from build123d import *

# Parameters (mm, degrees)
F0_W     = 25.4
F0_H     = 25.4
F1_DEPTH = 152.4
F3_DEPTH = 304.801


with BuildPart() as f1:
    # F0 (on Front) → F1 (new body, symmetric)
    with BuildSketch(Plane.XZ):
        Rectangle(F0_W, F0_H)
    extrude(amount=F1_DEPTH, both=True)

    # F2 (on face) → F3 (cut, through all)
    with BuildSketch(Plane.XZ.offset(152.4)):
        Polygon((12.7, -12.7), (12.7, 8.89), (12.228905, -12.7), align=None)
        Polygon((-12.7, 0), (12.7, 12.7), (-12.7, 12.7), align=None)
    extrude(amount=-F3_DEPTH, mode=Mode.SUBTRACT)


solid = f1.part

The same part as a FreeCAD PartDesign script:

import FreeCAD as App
import Part
import Sketcher
Q = App.Units.Quantity


def add_polygon(sketch, points):
    """Adds a closed chain of lines whose ends are joined by coincident constraints."""
    first, n = sketch.GeometryCount, len(points)
    for a, b in zip(points, points[1:] + points[:1]):
        sketch.addGeometry(Part.LineSegment(App.Vector(*a, 0), App.Vector(*b, 0)), False)
    for i in range(n):
        sketch.addConstraint(Sketcher.Constraint("Coincident", first + i, 2, first + (i + 1) % n, 1))

doc = App.newDocument("Part")
body = doc.addObject("PartDesign::Body", "Body")

# Sketch on XZ plane
sketch1 = body.newObject("Sketcher::SketchObject", "Sketch")
sketch1.AttachmentSupport = (doc.getObject("XZ_Plane"), [""])
sketch1.MapMode = "FlatFace"
add_polygon(sketch1, [(-12.7, 12.7), (-12.7, -12.7), (12.7, -12.7), (12.7, 12.7)])  # lines 0-3
sketch1.addConstraint([
    Sketcher.Constraint("Vertical", 0),
    Sketcher.Constraint("Horizontal", 1),
    Sketcher.Constraint("Vertical", 2),
    Sketcher.Constraint("Horizontal", 3),
    Sketcher.Constraint("Symmetric", 0, 2, 2, 2, -1, 1),
    Sketcher.Constraint("Equal", 3, 0),
    Sketcher.Constraint("DistanceX", 1, 1, 1, 2, Q("1 in")),
])
pad1 = body.newObject("PartDesign::Pad", "Pad")
pad1.Profile = sketch1
pad1.Length = Q("12 in")
pad1.Midplane = True

# Sketch on XZ plane
sketch2 = body.newObject("Sketcher::SketchObject", "Sketch001")
sketch2.AttachmentSupport = (doc.getObject("XZ_Plane"), [""])
sketch2.MapMode = "FlatFace"
sketch2.AttachmentOffset = App.Placement(App.Vector(0, 0, 6 * 25.4), App.Rotation())
add_polygon(sketch2, [(12.7, -12.7), (12.7, 8.89), (12.228905, -12.7)])  # lines 0-2
add_polygon(sketch2, [(-12.7, 0), (12.7, 12.7), (-12.7, 12.7)])  # lines 3-5
sketch2.addConstraint([
    Sketcher.Constraint("Vertical", 0),
    Sketcher.Constraint("Horizontal", 2),
    Sketcher.Constraint("Horizontal", 4),
    Sketcher.Constraint("Vertical", 5),
    Sketcher.Constraint("Symmetric", 2, 2, 4, 2, -1, 1),
    Sketcher.Constraint("PointOnObject", 5, 2, -1),
    Sketcher.Constraint("Vertical", 2, 2, 3, 2),
    Sketcher.Constraint("DistanceX", 4, 2, 4, 1, Q("1 in")),
    Sketcher.Constraint("DistanceY", 5, 2, 5, 1, Q("0.5 in")),
    Sketcher.Constraint("DistanceY", 0, 1, 0, 2, Q("0.85 in")),
    Sketcher.Constraint("Angle", 1, Q("-91.249999 deg")),
])
pocket1 = body.newObject("PartDesign::Pocket", "Pocket")
pocket1.Profile = sketch2
pocket1.Type = "ThroughAll"

doc.recompute()
